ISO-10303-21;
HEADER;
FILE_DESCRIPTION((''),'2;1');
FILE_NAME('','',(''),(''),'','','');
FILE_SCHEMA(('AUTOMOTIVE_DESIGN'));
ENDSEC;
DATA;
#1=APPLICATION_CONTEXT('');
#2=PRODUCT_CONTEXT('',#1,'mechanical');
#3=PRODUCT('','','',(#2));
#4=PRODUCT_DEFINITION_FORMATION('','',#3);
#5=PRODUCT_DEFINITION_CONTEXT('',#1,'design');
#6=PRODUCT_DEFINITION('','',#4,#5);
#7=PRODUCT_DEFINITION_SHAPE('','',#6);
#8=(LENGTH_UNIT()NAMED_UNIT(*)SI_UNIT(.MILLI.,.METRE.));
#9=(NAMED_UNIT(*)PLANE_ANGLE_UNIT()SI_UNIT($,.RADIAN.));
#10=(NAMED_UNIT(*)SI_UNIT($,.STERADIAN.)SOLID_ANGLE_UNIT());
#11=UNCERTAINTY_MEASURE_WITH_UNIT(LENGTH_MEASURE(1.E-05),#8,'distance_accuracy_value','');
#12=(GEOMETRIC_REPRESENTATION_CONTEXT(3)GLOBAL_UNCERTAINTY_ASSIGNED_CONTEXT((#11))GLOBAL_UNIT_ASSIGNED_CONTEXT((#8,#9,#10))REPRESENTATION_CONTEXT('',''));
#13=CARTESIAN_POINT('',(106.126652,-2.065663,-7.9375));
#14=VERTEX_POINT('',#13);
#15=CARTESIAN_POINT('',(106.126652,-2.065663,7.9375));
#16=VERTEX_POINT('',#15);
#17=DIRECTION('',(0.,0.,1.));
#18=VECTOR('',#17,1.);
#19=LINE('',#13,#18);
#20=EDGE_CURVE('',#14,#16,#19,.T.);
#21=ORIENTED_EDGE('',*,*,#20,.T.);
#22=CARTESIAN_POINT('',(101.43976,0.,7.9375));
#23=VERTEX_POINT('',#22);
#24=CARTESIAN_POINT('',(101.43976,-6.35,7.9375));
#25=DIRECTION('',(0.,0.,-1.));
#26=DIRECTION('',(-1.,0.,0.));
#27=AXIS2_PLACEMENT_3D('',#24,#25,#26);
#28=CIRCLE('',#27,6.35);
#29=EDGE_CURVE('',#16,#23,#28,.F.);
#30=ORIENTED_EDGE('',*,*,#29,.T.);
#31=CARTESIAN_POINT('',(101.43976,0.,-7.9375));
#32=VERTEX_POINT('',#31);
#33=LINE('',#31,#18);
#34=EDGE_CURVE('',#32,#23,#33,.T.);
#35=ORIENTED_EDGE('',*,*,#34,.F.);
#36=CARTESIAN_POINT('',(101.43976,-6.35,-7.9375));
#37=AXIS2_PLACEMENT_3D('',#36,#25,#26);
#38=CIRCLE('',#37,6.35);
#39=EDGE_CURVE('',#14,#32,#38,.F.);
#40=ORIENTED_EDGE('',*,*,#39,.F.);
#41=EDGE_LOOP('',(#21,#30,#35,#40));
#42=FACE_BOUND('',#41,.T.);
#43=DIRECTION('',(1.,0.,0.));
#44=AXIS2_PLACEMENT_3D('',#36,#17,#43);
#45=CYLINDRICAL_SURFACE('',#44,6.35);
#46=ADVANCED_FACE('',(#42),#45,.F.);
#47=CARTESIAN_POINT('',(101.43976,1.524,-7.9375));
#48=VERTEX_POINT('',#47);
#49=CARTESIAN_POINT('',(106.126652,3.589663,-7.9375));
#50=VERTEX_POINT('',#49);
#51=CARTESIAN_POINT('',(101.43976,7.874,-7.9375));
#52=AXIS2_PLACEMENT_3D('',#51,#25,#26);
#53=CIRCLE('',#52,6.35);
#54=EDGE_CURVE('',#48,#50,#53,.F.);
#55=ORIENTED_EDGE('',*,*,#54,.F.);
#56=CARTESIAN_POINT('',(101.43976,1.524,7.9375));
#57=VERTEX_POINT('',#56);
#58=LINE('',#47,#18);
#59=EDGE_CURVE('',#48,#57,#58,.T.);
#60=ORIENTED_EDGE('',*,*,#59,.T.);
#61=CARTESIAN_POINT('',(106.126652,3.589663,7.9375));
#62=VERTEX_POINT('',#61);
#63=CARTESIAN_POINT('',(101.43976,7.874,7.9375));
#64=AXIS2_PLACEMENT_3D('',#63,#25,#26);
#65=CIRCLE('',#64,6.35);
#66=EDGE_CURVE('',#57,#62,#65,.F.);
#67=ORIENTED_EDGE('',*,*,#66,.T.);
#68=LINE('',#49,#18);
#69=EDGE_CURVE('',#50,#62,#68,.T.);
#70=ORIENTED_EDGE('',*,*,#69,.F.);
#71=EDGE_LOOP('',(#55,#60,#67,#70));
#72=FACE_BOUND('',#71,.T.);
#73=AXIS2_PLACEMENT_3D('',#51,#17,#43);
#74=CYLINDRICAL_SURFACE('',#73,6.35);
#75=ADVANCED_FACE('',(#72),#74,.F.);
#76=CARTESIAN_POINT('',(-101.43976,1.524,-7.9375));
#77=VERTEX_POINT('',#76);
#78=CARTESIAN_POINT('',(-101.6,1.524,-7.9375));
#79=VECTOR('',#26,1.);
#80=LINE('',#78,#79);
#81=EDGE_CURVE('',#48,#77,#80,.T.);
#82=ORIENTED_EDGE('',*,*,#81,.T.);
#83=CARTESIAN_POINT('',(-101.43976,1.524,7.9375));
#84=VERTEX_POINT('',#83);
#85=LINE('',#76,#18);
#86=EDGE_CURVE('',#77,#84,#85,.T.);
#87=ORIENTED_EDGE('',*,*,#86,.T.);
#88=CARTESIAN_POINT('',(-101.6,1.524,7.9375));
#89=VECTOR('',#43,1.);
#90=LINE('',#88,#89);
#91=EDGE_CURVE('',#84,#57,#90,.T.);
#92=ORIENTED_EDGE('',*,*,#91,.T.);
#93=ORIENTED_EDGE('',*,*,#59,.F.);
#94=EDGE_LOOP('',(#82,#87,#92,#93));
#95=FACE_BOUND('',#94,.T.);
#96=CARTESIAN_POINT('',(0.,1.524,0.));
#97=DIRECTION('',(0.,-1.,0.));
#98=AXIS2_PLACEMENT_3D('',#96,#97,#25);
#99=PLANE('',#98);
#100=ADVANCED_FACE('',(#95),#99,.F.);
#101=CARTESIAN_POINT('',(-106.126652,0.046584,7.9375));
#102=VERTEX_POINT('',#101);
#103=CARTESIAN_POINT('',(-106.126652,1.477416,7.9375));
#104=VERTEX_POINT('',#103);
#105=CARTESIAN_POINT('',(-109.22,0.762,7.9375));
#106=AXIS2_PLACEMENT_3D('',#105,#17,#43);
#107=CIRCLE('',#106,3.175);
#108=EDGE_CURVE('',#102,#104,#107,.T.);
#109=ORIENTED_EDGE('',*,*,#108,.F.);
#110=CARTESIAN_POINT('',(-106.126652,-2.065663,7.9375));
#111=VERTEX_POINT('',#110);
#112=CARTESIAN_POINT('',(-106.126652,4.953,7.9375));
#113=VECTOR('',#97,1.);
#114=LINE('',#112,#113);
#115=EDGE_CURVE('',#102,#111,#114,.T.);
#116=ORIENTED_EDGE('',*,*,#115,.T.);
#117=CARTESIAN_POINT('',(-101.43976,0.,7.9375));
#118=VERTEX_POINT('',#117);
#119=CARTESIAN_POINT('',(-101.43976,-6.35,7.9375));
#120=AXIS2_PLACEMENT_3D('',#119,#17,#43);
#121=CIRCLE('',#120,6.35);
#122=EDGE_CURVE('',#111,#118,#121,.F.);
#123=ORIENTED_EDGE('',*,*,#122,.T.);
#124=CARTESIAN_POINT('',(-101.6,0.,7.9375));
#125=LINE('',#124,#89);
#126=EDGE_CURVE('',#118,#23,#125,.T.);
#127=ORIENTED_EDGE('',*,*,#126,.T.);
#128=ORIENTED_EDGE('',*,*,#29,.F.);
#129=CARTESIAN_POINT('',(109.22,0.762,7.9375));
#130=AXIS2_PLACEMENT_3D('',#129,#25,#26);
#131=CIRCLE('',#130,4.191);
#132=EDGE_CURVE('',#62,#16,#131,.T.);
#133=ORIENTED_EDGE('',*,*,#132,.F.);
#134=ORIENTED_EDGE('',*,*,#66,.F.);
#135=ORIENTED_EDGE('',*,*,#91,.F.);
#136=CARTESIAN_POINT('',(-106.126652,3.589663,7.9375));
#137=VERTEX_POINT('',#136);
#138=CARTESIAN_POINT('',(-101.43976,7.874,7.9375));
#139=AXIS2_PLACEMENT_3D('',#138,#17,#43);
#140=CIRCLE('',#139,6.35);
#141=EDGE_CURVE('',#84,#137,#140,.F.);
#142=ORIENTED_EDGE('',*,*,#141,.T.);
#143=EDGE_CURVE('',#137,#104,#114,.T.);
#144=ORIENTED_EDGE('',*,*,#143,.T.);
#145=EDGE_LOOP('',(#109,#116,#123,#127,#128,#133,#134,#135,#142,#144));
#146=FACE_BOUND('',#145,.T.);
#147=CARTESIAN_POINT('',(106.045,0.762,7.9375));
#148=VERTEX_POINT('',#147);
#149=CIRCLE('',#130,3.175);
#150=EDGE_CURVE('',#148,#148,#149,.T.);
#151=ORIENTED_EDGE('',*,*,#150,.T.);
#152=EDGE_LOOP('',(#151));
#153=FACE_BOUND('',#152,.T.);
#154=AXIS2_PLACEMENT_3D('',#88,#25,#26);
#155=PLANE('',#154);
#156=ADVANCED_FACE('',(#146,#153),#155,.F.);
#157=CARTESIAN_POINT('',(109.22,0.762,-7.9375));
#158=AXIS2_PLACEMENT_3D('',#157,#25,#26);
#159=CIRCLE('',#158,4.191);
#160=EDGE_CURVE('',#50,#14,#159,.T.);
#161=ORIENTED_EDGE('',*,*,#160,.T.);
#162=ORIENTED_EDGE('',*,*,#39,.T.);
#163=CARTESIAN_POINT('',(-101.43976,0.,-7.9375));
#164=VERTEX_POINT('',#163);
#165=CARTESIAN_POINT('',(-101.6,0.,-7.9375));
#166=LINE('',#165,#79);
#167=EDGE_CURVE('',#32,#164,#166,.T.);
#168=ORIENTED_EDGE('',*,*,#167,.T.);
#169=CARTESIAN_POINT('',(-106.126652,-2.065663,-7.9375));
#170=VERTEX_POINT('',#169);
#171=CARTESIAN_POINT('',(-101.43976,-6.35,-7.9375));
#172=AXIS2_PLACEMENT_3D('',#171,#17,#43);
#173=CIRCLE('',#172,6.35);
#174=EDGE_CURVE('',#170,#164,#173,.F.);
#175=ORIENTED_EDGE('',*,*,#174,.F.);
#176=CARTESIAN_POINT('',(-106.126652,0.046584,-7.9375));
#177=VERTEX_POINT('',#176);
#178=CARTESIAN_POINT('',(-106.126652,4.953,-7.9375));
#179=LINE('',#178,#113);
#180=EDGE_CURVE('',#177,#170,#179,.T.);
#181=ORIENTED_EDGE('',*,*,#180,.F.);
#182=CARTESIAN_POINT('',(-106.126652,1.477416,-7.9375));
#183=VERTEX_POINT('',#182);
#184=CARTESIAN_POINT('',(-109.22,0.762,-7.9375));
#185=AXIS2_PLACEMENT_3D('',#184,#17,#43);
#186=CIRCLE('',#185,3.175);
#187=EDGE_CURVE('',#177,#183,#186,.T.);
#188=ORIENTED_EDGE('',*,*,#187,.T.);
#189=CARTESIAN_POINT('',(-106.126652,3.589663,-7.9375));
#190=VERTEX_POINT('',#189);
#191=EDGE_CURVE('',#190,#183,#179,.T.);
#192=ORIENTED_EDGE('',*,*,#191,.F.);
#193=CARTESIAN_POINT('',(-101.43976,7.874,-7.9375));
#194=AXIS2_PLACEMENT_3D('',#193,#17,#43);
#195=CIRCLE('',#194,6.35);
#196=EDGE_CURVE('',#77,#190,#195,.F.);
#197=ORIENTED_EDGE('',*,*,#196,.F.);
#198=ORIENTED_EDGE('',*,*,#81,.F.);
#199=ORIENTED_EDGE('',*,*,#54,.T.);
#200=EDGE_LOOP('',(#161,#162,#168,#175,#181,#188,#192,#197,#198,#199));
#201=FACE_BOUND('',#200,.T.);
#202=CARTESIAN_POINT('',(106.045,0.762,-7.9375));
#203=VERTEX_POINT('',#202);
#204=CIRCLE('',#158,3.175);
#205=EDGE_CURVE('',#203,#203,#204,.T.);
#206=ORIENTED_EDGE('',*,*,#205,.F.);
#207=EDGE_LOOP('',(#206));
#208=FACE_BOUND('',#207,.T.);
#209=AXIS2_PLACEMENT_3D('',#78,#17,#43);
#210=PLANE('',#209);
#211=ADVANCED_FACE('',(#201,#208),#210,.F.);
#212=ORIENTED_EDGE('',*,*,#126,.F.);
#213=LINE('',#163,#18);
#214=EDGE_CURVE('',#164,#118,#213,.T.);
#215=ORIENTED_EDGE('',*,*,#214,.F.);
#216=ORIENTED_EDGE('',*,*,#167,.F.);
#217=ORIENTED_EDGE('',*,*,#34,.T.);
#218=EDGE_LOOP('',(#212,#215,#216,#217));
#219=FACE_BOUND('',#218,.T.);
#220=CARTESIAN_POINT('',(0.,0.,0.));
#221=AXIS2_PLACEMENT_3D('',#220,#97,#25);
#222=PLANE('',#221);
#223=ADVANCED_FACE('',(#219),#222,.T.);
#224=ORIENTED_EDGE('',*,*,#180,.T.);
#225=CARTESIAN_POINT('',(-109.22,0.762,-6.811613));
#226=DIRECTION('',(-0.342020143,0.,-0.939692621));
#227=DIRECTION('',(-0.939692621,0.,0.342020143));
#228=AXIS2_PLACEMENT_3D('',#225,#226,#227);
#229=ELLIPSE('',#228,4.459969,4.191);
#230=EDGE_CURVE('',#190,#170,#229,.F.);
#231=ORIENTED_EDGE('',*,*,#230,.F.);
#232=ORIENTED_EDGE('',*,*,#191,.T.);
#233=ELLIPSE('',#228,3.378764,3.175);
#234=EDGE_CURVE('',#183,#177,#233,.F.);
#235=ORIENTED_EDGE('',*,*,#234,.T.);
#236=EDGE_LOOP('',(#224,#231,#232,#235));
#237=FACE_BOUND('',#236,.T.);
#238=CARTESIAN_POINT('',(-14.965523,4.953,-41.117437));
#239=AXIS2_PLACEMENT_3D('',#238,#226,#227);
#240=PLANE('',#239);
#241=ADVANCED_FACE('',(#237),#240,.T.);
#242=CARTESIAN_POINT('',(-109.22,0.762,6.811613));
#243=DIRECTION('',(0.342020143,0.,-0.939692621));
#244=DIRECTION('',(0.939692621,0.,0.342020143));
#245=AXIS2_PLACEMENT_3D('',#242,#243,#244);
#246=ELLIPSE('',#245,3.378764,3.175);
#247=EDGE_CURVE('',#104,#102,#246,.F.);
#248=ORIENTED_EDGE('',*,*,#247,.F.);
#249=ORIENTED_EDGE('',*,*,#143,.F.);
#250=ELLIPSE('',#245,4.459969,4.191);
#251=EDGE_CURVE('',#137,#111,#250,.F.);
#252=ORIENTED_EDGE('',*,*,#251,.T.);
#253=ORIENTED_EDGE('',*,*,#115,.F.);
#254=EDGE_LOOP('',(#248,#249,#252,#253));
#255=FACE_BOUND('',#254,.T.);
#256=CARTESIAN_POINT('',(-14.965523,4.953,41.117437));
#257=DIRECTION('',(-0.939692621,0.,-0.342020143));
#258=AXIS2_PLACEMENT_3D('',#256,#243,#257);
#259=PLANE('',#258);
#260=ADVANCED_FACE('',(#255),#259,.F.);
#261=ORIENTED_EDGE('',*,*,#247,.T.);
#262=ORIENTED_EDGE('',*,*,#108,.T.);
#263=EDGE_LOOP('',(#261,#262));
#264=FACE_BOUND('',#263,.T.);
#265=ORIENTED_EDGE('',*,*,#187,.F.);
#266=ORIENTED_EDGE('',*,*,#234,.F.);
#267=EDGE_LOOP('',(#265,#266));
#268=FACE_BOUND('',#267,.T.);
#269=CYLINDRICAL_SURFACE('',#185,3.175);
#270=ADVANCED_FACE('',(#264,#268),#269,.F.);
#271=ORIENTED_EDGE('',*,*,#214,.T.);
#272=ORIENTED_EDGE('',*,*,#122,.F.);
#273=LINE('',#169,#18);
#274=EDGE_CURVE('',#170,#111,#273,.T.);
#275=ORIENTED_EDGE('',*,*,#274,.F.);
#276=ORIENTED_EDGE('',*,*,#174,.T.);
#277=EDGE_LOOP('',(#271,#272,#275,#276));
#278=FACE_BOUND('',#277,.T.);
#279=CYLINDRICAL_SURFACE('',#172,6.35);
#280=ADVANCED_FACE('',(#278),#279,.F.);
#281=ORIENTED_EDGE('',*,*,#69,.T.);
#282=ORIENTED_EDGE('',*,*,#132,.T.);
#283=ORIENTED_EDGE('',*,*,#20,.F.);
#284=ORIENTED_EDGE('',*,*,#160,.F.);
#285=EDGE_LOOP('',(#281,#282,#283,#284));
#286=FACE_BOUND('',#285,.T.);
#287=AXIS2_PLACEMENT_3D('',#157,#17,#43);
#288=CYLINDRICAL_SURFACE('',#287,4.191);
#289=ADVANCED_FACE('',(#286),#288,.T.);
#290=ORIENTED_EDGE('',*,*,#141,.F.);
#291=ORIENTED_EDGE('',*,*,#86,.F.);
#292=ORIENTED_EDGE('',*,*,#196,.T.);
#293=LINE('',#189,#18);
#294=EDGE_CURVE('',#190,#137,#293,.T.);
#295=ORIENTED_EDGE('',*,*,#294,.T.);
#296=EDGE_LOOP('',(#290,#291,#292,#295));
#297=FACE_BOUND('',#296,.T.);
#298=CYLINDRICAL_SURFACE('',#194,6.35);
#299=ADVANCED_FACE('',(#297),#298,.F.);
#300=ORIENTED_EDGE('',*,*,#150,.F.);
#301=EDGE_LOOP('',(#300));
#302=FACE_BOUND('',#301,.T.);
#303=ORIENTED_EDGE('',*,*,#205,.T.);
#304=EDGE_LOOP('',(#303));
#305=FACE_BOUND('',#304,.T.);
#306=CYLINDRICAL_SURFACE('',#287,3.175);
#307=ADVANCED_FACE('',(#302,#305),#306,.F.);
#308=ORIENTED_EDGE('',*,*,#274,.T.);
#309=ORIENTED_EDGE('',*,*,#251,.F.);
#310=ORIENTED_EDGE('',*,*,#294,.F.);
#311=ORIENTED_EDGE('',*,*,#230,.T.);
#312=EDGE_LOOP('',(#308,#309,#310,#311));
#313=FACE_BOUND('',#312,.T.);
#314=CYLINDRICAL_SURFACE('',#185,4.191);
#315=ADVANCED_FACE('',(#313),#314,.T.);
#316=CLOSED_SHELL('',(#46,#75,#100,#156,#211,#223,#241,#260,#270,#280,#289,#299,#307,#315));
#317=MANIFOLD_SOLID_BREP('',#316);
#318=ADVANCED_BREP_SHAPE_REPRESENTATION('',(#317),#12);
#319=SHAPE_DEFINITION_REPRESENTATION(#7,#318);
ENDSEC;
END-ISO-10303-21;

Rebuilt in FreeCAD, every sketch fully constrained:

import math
import FreeCAD as App
import Part
import Sketcher
from FreeCAD import Vector
Q = App.Units.Quantity


def add_polygon(sketch, points):
    """Adds a closed chain of lines whose ends are joined by coincident constraints."""
    first, n = sketch.GeometryCount, len(points)
    for a, b in zip(points, points[1:] + points[:1]):
        sketch.addGeometry(Part.LineSegment(App.Vector(*a, 0), App.Vector(*b, 0)), False)
    for i in range(n):
        sketch.addConstraint(Sketcher.Constraint("Coincident", first + i, 2, first + (i + 1) % n, 1))

doc = App.newDocument("Part")
body = doc.addObject("PartDesign::Body", "Body")

sketch1 = body.newObject("Sketcher::SketchObject", "Sketch")
sketch1.AttachmentSupport = (doc.getObject("XZ_Plane"), [""])
sketch1.MapMode = "FlatFace"
add_polygon(sketch1, [(-101.6, -7.9375), (-101.6, 7.9375), (101.6, 7.9375), (101.6, -7.9375)])
sketch1.addConstraint(Sketcher.Constraint("Vertical", 0))
sketch1.addConstraint(Sketcher.Constraint("Horizontal", 1))
sketch1.addConstraint(Sketcher.Constraint("Vertical", 2))
sketch1.addConstraint(Sketcher.Constraint("Horizontal", 3))
sketch1.addConstraint(Sketcher.Constraint("Symmetric", 0, 2, 2, 2, -1, 1))
sketch1.addConstraint(Sketcher.Constraint("DistanceX", 1, 1, 1, 2, Q("8 in")))
sketch1.addConstraint(Sketcher.Constraint("DistanceY", 0, 1, 0, 2, Q("0.625 in")))
pad1 = body.newObject("PartDesign::Pad", "Pad")
pad1.Profile = sketch1
pad1.Length = Q("0.06 in")
pad1.Reversed = True

sketch2 = body.newObject("Sketcher::SketchObject", "Sketch001")
sketch2.AttachmentSupport = (doc.getObject("XY_Plane"), [""])
sketch2.MapMode = "FlatFace"
sketch2.AttachmentOffset = App.Placement(Vector(0, 0, 0.3125 * 25.4), App.Rotation())
sketch2.addGeometry(Part.ArcOfCircle(Part.Circle(Vector(-101.43976, -6.35, 0), Vector(0, 0, 1), 6.35), math.radians(90), math.radians(137.569236)), False)
sketch2.addGeometry(Part.LineSegment(Vector(-101.43976, 0, 0), Vector(-101.6, 0, 0)), False)
sketch2.addGeometry(Part.LineSegment(Vector(-101.6, 0, 0), Vector(-101.6, 1.524, 0)), False)
sketch2.addGeometry(Part.LineSegment(Vector(-101.6, 1.524, 0), Vector(-101.43976, 1.524, 0)), False)
sketch2.addGeometry(Part.ArcOfCircle(Part.Circle(Vector(-101.43976, 7.874, 0), Vector(0, 0, 1), 6.35), math.radians(-137.569236), math.radians(-90)), False)
sketch2.addGeometry(Part.ArcOfCircle(Part.Circle(Vector(-109.22, 0.762, 0), Vector(0, 0, 1), 4.191), math.radians(42.430764), math.radians(317.569236)), False)
sketch2.addGeometry(Part.Circle(Vector(-109.22, 0.762, 0), Vector(0, 0, 1), 3.175), False)
sketch2.addConstraint(Sketcher.Constraint("Tangent", 0, 1, 1, 1))
sketch2.addConstraint(Sketcher.Constraint("Coincident", 1, 2, 2, 1))
sketch2.addConstraint(Sketcher.Constraint("Coincident", 2, 2, 3, 1))
sketch2.addConstraint(Sketcher.Constraint("Tangent", 3, 2, 4, 2))
sketch2.addConstraint(Sketcher.Constraint("Tangent", 4, 1, 5, 1))
sketch2.addConstraint(Sketcher.Constraint("Tangent", 5, 2, 0, 2))
sketch2.addConstraint(Sketcher.Constraint("Horizontal", 1))
sketch2.addConstraint(Sketcher.Constraint("Vertical", 2))
sketch2.addConstraint(Sketcher.Constraint("Horizontal", 3))
sketch2.addConstraint(Sketcher.Constraint("Coincident", 6, 3, 5, 3))
sketch2.addConstraint(Sketcher.Constraint("Equal", 0, 4))
sketch2.addConstraint(Sketcher.Constraint("PointOnObject", 0, 1, -1))
sketch2.addConstraint(Sketcher.Constraint("Vertical", 0, 3, 4, 3))
sketch2.addConstraint(Sketcher.Constraint("Diameter", 6, Q("0.25 in")))
sketch2.addConstraint(Sketcher.Constraint("Radius", 0, Q("0.25 in")))
sketch2.addConstraint(Sketcher.Constraint("DistanceX", 1, 2, -1, 1, Q("4 in")))
sketch2.addConstraint(Sketcher.Constraint("Radius", 5, Q("0.165 in")))
sketch2.addConstraint(Sketcher.Constraint("DistanceY", 2, 1, 2, 2, Q("0.06 in")))
sketch2.addConstraint(Sketcher.Constraint("DistanceX", 5, 3, -1, 1, Q("4.3 in")))
pad2 = body.newObject("PartDesign::Pad", "Pad001")
pad2.Profile = sketch2
pad2.Length = Q("0.625 in")
pad2.Reversed = True
doc.recompute()

mirrored = body.newObject("PartDesign::Mirrored", "Mirrored")
mirrored.Originals = [pad2]
mirrored.MirrorPlane = (doc.getObject("YZ_Plane"), [""])
body.Tip = mirrored

sketch3 = body.newObject("Sketcher::SketchObject", "Sketch002")
sketch3.AttachmentSupport = (doc.getObject("XZ_Plane"), [""])
sketch3.MapMode = "FlatFace"
add_polygon(sketch3, [(-106.126652, -7.9375), (-113.411, -5.286214), (-113.411, -7.9375)])
add_polygon(sketch3, [(-113.411, 7.9375), (-113.411, 5.286214), (-106.126652, 7.9375)])
sketch3.addConstraint(Sketcher.Constraint("Vertical", 1))
sketch3.addConstraint(Sketcher.Constraint("Horizontal", 2))
sketch3.addConstraint(Sketcher.Constraint("Vertical", 3))
sketch3.addConstraint(Sketcher.Constraint("Horizontal", 5))
sketch3.addConstraint(Sketcher.Constraint("Symmetric", 0, 2, 3, 2, -1))
sketch3.addConstraint(Sketcher.Constraint("Symmetric", 2, 2, 4, 2, -1))
sketch3.addConstraint(Sketcher.Constraint("Angle", 0, Q("160 deg")))
sketch3.addConstraint(Sketcher.Constraint("DistanceX", 0, 2, -1, 1, Q("4.465 in")))
sketch3.addConstraint(Sketcher.Constraint("DistanceY", 1, 2, -1, 1, Q("0.3125 in")))
sketch3.addConstraint(Sketcher.Constraint("DistanceX", 2, 1, 2, 2, 7.284348))
pocket1 = body.newObject("PartDesign::Pocket", "Pocket")
pocket1.Profile = sketch3
pocket1.Type = "ThroughAll"
pocket1.Midplane = True

doc.recompute()
